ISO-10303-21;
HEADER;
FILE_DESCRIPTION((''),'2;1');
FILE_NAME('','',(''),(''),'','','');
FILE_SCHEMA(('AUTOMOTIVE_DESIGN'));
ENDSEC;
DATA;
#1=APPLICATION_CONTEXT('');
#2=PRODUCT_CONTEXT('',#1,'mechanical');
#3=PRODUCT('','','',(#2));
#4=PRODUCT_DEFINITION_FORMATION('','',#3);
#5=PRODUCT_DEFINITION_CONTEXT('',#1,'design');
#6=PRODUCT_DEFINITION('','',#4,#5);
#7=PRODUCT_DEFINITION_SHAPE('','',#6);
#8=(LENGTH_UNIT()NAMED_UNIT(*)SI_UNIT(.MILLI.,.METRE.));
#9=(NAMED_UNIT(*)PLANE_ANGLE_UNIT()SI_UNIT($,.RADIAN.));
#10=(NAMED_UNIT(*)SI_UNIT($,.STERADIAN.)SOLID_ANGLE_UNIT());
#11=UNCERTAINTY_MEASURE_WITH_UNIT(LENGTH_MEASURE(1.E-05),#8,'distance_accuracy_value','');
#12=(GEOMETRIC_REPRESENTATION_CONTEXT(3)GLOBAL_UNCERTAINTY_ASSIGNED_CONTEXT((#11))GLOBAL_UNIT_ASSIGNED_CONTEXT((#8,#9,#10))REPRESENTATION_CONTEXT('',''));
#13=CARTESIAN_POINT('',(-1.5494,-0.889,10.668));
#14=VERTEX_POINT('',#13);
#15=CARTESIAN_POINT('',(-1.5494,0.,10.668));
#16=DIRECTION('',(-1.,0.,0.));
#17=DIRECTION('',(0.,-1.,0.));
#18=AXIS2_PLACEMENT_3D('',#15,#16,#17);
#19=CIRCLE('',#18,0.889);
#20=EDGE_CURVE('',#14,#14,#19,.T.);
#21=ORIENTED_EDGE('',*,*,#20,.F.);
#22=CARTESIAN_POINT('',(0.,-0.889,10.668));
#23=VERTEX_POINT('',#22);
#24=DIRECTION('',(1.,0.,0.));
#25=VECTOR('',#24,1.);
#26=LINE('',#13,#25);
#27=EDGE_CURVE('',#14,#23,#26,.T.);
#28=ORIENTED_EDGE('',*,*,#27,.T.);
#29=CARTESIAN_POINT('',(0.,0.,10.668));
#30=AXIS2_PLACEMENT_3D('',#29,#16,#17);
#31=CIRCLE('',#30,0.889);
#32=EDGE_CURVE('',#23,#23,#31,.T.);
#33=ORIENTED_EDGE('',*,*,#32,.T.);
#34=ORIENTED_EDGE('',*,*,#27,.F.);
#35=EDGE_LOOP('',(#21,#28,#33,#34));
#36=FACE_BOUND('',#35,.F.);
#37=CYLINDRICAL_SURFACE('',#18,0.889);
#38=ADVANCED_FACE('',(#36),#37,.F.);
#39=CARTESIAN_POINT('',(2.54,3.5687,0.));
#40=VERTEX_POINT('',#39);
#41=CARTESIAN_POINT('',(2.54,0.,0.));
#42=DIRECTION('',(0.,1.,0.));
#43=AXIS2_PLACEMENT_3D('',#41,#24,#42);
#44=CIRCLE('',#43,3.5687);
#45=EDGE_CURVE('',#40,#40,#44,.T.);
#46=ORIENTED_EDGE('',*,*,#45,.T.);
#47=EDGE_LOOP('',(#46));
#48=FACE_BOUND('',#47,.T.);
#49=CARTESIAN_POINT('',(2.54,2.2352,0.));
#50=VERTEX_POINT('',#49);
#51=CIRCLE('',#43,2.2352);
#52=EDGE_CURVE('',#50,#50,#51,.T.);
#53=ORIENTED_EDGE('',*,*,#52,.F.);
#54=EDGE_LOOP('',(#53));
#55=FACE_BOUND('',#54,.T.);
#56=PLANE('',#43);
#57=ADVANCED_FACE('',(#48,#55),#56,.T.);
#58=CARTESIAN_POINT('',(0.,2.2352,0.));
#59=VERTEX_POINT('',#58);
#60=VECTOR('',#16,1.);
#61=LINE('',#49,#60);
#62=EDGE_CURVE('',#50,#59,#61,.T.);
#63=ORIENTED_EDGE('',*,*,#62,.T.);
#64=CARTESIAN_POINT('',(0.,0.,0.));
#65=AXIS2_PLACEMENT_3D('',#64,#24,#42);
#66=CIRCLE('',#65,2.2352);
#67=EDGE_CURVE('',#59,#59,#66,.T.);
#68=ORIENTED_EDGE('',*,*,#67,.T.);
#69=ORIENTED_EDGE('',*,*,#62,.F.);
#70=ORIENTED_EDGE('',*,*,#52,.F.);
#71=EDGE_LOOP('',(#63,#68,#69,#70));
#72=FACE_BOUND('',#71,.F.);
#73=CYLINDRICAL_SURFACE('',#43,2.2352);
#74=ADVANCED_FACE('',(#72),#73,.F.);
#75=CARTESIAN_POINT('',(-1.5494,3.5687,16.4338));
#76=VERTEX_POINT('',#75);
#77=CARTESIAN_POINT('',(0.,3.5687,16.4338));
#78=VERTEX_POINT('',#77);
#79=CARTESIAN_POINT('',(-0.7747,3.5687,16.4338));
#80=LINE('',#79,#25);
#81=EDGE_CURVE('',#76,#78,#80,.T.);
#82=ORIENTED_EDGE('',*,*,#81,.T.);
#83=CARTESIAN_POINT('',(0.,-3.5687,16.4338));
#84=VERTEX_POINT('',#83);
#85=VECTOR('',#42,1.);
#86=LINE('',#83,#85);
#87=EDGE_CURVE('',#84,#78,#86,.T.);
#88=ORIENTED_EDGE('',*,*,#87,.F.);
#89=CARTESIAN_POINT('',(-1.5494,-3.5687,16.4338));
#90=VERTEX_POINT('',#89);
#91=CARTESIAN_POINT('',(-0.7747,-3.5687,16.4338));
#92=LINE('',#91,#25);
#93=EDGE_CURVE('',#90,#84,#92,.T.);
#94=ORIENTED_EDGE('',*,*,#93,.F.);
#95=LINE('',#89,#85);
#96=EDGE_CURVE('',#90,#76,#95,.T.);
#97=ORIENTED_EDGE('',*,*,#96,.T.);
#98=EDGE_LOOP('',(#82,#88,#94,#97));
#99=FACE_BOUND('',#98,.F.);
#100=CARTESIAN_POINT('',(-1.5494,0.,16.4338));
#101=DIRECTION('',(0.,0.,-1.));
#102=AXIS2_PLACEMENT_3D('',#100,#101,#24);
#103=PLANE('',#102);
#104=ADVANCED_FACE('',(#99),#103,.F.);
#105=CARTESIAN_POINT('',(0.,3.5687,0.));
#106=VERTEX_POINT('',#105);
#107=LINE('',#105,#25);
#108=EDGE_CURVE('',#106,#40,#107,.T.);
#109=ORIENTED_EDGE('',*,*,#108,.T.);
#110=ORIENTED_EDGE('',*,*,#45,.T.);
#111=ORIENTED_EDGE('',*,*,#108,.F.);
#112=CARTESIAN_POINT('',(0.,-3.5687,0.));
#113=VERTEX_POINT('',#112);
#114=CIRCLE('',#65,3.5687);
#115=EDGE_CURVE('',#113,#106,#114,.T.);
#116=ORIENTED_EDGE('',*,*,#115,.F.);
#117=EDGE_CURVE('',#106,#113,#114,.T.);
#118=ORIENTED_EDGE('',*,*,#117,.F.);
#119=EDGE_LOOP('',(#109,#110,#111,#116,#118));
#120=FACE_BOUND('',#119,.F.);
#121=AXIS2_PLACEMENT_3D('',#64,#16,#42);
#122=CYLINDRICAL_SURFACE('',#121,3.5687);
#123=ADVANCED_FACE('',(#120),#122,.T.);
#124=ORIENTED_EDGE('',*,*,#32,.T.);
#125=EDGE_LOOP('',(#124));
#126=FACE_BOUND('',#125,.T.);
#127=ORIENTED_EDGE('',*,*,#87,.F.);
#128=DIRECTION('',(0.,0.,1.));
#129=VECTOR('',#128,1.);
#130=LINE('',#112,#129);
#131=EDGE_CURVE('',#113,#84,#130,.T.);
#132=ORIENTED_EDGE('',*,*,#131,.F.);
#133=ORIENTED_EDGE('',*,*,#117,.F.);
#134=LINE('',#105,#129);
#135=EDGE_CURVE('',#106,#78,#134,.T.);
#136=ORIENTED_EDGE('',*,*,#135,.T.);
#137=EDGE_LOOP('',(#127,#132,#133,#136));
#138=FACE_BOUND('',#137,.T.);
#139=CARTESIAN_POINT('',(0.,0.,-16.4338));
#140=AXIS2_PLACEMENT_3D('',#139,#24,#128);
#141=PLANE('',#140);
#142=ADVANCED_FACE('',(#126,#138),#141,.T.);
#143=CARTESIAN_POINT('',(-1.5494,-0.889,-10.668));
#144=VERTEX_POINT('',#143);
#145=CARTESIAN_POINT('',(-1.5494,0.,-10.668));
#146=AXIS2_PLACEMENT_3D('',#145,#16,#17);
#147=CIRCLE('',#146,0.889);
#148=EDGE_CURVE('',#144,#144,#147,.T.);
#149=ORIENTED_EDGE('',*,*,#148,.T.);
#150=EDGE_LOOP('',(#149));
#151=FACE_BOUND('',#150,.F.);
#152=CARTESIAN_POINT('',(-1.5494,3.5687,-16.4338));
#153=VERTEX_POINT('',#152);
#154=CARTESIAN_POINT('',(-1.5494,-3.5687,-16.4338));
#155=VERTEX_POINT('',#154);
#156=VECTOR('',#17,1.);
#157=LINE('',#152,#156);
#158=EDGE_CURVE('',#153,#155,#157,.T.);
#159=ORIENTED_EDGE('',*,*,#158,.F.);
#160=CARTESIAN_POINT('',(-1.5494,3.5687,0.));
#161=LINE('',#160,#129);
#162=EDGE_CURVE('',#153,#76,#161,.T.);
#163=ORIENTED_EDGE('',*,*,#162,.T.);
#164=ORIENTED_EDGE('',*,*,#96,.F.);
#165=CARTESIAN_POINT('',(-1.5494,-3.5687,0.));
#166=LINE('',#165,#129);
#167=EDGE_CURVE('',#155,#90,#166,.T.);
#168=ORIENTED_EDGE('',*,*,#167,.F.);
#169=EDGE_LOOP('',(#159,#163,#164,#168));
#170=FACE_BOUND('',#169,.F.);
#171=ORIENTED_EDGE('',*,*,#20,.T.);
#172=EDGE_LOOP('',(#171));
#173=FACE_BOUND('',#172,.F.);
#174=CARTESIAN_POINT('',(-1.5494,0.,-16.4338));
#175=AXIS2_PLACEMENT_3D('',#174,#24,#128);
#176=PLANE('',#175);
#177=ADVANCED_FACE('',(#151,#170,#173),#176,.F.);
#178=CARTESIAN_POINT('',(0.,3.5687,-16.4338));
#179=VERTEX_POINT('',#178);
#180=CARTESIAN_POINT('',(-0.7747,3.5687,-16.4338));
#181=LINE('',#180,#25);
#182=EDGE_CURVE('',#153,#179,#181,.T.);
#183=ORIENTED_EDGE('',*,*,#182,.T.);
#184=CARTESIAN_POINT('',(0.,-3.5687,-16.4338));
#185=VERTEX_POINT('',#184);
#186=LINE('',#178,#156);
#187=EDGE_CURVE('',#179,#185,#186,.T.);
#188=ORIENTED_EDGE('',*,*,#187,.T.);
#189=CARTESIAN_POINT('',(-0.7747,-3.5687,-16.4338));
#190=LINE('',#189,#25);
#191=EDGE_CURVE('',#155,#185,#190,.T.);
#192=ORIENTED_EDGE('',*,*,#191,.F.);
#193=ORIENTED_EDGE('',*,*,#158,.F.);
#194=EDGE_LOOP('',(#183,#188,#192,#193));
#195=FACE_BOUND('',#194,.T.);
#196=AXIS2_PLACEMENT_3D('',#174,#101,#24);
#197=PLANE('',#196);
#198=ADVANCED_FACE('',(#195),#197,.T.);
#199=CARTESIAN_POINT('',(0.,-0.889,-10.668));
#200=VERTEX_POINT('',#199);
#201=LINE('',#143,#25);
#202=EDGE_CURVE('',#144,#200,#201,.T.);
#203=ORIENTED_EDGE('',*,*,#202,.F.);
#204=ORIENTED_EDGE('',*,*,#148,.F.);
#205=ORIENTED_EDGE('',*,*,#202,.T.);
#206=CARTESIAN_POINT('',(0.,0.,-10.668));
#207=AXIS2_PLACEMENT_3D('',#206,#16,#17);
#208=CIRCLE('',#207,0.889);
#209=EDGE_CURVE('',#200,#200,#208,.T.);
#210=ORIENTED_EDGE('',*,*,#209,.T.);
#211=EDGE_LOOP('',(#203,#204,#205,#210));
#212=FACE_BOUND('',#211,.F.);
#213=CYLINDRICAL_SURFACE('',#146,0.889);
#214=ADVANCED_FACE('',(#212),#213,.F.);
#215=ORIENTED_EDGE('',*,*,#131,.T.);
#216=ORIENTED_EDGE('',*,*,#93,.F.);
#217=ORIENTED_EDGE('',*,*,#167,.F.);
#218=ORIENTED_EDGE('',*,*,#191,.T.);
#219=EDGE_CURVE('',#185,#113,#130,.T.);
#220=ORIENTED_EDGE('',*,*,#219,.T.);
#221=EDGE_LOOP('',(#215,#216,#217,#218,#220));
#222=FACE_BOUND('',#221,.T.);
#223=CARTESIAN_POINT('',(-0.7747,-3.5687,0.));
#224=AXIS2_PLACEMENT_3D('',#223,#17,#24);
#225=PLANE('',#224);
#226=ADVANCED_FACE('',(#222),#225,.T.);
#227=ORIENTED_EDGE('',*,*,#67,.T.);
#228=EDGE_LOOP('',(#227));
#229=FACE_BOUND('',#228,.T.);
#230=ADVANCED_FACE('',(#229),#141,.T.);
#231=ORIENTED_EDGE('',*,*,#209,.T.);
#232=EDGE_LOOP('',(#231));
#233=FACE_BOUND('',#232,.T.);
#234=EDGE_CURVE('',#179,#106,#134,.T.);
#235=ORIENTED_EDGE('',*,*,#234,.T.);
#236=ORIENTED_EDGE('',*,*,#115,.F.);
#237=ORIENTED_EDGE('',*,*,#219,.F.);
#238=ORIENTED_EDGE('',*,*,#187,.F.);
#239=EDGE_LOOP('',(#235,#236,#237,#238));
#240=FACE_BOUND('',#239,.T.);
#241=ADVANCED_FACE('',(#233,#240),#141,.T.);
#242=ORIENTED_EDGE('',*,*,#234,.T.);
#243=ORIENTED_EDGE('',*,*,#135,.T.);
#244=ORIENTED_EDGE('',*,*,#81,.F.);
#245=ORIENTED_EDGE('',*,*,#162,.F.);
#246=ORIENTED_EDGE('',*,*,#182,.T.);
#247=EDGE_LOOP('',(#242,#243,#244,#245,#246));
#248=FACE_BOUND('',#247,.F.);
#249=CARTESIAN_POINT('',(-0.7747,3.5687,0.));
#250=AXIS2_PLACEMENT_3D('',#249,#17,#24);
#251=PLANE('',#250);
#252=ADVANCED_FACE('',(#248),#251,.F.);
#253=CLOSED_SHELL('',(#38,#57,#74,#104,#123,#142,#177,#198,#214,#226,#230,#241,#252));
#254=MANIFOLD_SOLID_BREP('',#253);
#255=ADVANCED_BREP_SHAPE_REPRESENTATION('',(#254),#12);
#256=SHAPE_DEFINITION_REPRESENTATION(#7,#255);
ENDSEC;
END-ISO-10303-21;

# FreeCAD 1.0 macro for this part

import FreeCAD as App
import Part
import Sketcher

V = App.Vector
Q = App.Units.Quantity


def add_polygon(sketch, points):
    """Adds a closed chain of lines whose ends are joined by coincident constraints."""
    first, n = sketch.GeometryCount, len(points)
    for a, b in zip(points, points[1:] + points[:1]):
        sketch.addGeometry(Part.LineSegment(App.Vector(*a, 0), App.Vector(*b, 0)), False)
    for i in range(n):
        sketch.addConstraint(Sketcher.Constraint("Coincident", first + i, 2, first + (i + 1) % n, 1))

doc = App.newDocument("Part")
body = doc.addObject("PartDesign::Body", "Body")

# Sketch on YZ plane
sketch1 = body.newObject("Sketcher::SketchObject", "Sketch")
sketch1.AttachmentSupport = (doc.getObject("YZ_Plane"), [""])
sketch1.MapMode = "FlatFace"
sketch1.addGeometry(Part.Circle(V(0, 0, 0), V(0, 0, 1), 3.6), False)
sketch1.addConstraint([
    Sketcher.Constraint("Coincident", 0, 3, -1, 1),
    Sketcher.Constraint("Diameter", 0, Q("0.281 in")),
])
pad1 = body.newObject("PartDesign::Pad", "Pad")
pad1.Profile = sketch1
pad1.Length = Q("0.1 in")

# Sketch on YZ plane
sketch2 = body.newObject("Sketcher::SketchObject", "Sketch001")
sketch2.AttachmentSupport = (doc.getObject("YZ_Plane"), [""])
sketch2.MapMode = "FlatFace"
sketch2.AttachmentOffset = App.Placement(V(0, 0, 0.1 * 25.4), App.Rotation())
sketch2.addGeometry(Part.Circle(V(0, 0, 0), V(0, 0, 1), 2.2), False)
sketch2.addConstraint([
    Sketcher.Constraint("Coincident", 0, 3, -1, 1),
    Sketcher.Constraint("Diameter", 0, Q("0.176 in")),
])
pocket1 = body.newObject("PartDesign::Pocket", "Pocket")
pocket1.Profile = sketch2
pocket1.Length = Q("0.1 in")

# Sketch on XZ plane
sketch3 = body.newObject("Sketcher::SketchObject", "Sketch002")
sketch3.AttachmentSupport = (doc.getObject("XZ_Plane"), [""])
sketch3.MapMode = "FlatFace"
add_polygon(sketch3, [(-1.5, 16.4), (-1.5, -16.4), (0, -16.4), (0, 16.4)])  # lines 0-3
sketch3.addConstraint([
    Sketcher.Constraint("Vertical", 0),
    Sketcher.Constraint("Horizontal", 1),
    Sketcher.Constraint("Vertical", 2),
    Sketcher.Constraint("Horizontal", 3),
    Sketcher.Constraint("Symmetric", 1, 2, 2, 2, -1, 1),
    Sketcher.Constraint("DistanceX", 1, 1, 1, 2, Q("0.061 in")),
    Sketcher.Constraint("DistanceY", 0, 2, 0, 1, Q("1.294 in")),
])
pad2 = body.newObject("PartDesign::Pad", "Pad001")
pad2.Profile = sketch3
pad2.Length = Q("0.281 in")
pad2.Midplane = True

# Sketch on YZ plane
sketch4 = body.newObject("Sketcher::SketchObject", "Sketch003")
sketch4.AttachmentSupport = (doc.getObject("YZ_Plane"), [""])
sketch4.MapMode = "FlatFace"
sketch4.AttachmentOffset = App.Placement(V(0, 0, -0.061 * 25.4), App.Rotation())
sketch4.addGeometry([
    Part.Circle(V(0, -10.7, 0), V(0, 0, 1), 0.9),
    Part.Circle(V(0, 10.7, 0), V(0, 0, 1), 0.9),
], False)
sketch4.addConstraint([
    Sketcher.Constraint("Equal", 0, 1),
    Sketcher.Constraint("Symmetric", 0, 3, 1, 3, -1, 1),
    Sketcher.Constraint("PointOnObject", 0, 3, -2),
    Sketcher.Constraint("Diameter", 0, Q("0.07 in")),
    Sketcher.Constraint("DistanceY", 0, 3, -1, 1, Q("0.42 in")),
])
pocket2 = body.newObject("PartDesign::Pocket", "Pocket001")
pocket2.Profile = sketch4
pocket2.Length = Q("1 in")
pocket2.Reversed = True

doc.recompute()
